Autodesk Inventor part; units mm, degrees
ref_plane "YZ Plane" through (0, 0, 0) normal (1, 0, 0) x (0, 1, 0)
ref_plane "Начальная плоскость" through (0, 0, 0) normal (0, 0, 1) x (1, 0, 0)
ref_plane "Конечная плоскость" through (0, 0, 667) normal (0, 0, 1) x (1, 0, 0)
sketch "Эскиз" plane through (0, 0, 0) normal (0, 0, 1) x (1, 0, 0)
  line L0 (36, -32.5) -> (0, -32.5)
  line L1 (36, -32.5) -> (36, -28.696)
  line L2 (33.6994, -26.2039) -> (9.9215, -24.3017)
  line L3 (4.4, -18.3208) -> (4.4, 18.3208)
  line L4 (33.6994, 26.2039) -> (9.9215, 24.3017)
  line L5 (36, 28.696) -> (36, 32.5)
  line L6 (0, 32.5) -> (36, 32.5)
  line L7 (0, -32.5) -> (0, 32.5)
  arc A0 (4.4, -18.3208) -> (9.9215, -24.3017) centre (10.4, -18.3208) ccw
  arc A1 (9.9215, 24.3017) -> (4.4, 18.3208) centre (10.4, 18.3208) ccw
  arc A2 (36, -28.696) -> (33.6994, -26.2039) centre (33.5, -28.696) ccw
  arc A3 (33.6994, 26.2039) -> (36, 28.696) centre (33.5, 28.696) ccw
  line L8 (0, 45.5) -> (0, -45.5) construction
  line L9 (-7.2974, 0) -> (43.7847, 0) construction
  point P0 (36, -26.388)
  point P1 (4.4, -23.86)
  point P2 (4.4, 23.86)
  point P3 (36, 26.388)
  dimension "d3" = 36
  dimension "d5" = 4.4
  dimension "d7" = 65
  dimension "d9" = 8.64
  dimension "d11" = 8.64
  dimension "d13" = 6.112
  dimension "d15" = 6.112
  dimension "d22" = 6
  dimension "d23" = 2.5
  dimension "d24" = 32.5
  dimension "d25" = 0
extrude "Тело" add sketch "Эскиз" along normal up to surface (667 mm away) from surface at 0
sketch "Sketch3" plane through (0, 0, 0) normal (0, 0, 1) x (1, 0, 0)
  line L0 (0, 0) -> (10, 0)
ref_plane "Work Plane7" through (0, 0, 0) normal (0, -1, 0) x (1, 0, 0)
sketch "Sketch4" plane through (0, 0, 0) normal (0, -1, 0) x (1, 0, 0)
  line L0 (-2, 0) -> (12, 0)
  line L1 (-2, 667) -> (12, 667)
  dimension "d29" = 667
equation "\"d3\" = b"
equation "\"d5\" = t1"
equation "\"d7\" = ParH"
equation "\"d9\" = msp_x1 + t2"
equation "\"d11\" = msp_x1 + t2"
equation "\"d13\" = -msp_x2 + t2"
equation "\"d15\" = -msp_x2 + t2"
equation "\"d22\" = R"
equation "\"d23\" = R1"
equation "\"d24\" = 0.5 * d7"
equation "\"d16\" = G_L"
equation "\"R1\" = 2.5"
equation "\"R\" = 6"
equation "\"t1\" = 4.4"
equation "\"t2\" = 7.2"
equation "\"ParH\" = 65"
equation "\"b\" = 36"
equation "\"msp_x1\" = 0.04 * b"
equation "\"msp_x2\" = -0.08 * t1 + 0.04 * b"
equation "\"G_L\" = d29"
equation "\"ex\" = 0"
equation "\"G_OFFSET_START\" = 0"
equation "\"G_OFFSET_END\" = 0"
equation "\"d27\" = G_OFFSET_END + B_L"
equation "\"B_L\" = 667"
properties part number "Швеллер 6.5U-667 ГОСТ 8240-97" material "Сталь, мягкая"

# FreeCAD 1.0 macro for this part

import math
import FreeCAD as App
import Part
import Sketcher

V = App.Vector

doc = App.newDocument("Part")
body = doc.addObject("PartDesign::Body", "Body")

# Sketch on XY plane
sketch1 = body.newObject("Sketcher::SketchObject", "Sketch")
sketch1.AttachmentSupport = (doc.getObject("XY_Plane"), [""])
sketch1.MapMode = "FlatFace"
sketch1.addGeometry([
    Part.LineSegment(V(0, -32.5, 0), V(36, -32.5, 0)),  # 0
    Part.LineSegment(V(36, -32.5, 0), V(36, -28.7, 0)),  # 1
    Part.ArcOfCircle(Part.Circle(V(33.5, -28.7, 0), V(0, 0, 1), 2.5), math.radians(0), math.radians(85)),  # 2
    Part.LineSegment(V(33.7, -26.2, 0), V(9.9, -24.3, 0)),  # 3
    Part.ArcOfCircle(Part.Circle(V(10.4, -18.3, 0), V(0, 0, 1), 6), math.radians(180), math.radians(265)),  # 4
    Part.LineSegment(V(4.4, -18.3, 0), V(4.4, 18.3, 0)),  # 5
    Part.ArcOfCircle(Part.Circle(V(10.4, 18.3, 0), V(0, 0, 1), 6), math.radians(95), math.radians(180)),  # 6
    Part.LineSegment(V(9.9, 24.3, 0), V(33.7, 26.2, 0)),  # 7
    Part.ArcOfCircle(Part.Circle(V(33.5, 28.7, 0), V(0, 0, 1), 2.5), math.radians(-85), math.radians(0)),  # 8
    Part.LineSegment(V(36, 28.7, 0), V(36, 32.5, 0)),  # 9
    Part.LineSegment(V(36, 32.5, 0), V(0, 32.5, 0)),  # 10
    Part.LineSegment(V(0, 32.5, 0), V(0, -32.5, 0)),  # 11
], False)
sketch1.addConstraint([
    Sketcher.Constraint("Coincident", 0, 2, 1, 1),
    Sketcher.Constraint("Tangent", 1, 2, 2, 1),
    Sketcher.Constraint("Tangent", 2, 2, 3, 1),
    Sketcher.Constraint("Tangent", 3, 2, 4, 2),
    Sketcher.Constraint("Tangent", 4, 1, 5, 1),
    Sketcher.Constraint("Tangent", 5, 2, 6, 2),
    Sketcher.Constraint("Tangent", 6, 1, 7, 1),
    Sketcher.Constraint("Tangent", 7, 2, 8, 1),
    Sketcher.Constraint("Tangent", 8, 2, 9, 1),
    Sketcher.Constraint("Coincident", 9, 2, 10, 1),
    Sketcher.Constraint("Coincident", 10, 2, 11, 1),
    Sketcher.Constraint("Coincident", 11, 2, 0, 1),
    Sketcher.Constraint("Horizontal", 0),
    Sketcher.Constraint("Vertical", 1),
    Sketcher.Constraint("Vertical", 5),
    Sketcher.Constraint("Vertical", 9),
    Sketcher.Constraint("Horizontal", 10),
    Sketcher.Constraint("Vertical", 11),
    Sketcher.Constraint("Equal", 4, 6),
    Sketcher.Constraint("Equal", 2, 8),
    Sketcher.Constraint("Symmetric", 10, 2, 11, 2, -1, 1),
    Sketcher.Constraint("Symmetric", 2, 3, 8, 3, -1),
    Sketcher.Constraint("Vertical", 3, 2, 6, 1),
    Sketcher.Constraint("Radius", 4, 6.0),
    Sketcher.Constraint("Radius", 2, 2.5),
    Sketcher.Constraint("DistanceX", 0, 1, 0, 2, 36.0),
    Sketcher.Constraint("DistanceY", 11, 2, 11, 1, 65.0),
    Sketcher.Constraint("DistanceX", -1, 1, 4, 1, 4.4),
    Sketcher.Constraint("DistanceY", 1, 1, 1, 2, 3.804),
    Sketcher.Constraint("DistanceY", 5, 1, 5, 2, 36.6416),
])
pad1 = body.newObject("PartDesign::Pad", "Pad")
pad1.Profile = sketch1
pad1.Length = 667

doc.recompute()
